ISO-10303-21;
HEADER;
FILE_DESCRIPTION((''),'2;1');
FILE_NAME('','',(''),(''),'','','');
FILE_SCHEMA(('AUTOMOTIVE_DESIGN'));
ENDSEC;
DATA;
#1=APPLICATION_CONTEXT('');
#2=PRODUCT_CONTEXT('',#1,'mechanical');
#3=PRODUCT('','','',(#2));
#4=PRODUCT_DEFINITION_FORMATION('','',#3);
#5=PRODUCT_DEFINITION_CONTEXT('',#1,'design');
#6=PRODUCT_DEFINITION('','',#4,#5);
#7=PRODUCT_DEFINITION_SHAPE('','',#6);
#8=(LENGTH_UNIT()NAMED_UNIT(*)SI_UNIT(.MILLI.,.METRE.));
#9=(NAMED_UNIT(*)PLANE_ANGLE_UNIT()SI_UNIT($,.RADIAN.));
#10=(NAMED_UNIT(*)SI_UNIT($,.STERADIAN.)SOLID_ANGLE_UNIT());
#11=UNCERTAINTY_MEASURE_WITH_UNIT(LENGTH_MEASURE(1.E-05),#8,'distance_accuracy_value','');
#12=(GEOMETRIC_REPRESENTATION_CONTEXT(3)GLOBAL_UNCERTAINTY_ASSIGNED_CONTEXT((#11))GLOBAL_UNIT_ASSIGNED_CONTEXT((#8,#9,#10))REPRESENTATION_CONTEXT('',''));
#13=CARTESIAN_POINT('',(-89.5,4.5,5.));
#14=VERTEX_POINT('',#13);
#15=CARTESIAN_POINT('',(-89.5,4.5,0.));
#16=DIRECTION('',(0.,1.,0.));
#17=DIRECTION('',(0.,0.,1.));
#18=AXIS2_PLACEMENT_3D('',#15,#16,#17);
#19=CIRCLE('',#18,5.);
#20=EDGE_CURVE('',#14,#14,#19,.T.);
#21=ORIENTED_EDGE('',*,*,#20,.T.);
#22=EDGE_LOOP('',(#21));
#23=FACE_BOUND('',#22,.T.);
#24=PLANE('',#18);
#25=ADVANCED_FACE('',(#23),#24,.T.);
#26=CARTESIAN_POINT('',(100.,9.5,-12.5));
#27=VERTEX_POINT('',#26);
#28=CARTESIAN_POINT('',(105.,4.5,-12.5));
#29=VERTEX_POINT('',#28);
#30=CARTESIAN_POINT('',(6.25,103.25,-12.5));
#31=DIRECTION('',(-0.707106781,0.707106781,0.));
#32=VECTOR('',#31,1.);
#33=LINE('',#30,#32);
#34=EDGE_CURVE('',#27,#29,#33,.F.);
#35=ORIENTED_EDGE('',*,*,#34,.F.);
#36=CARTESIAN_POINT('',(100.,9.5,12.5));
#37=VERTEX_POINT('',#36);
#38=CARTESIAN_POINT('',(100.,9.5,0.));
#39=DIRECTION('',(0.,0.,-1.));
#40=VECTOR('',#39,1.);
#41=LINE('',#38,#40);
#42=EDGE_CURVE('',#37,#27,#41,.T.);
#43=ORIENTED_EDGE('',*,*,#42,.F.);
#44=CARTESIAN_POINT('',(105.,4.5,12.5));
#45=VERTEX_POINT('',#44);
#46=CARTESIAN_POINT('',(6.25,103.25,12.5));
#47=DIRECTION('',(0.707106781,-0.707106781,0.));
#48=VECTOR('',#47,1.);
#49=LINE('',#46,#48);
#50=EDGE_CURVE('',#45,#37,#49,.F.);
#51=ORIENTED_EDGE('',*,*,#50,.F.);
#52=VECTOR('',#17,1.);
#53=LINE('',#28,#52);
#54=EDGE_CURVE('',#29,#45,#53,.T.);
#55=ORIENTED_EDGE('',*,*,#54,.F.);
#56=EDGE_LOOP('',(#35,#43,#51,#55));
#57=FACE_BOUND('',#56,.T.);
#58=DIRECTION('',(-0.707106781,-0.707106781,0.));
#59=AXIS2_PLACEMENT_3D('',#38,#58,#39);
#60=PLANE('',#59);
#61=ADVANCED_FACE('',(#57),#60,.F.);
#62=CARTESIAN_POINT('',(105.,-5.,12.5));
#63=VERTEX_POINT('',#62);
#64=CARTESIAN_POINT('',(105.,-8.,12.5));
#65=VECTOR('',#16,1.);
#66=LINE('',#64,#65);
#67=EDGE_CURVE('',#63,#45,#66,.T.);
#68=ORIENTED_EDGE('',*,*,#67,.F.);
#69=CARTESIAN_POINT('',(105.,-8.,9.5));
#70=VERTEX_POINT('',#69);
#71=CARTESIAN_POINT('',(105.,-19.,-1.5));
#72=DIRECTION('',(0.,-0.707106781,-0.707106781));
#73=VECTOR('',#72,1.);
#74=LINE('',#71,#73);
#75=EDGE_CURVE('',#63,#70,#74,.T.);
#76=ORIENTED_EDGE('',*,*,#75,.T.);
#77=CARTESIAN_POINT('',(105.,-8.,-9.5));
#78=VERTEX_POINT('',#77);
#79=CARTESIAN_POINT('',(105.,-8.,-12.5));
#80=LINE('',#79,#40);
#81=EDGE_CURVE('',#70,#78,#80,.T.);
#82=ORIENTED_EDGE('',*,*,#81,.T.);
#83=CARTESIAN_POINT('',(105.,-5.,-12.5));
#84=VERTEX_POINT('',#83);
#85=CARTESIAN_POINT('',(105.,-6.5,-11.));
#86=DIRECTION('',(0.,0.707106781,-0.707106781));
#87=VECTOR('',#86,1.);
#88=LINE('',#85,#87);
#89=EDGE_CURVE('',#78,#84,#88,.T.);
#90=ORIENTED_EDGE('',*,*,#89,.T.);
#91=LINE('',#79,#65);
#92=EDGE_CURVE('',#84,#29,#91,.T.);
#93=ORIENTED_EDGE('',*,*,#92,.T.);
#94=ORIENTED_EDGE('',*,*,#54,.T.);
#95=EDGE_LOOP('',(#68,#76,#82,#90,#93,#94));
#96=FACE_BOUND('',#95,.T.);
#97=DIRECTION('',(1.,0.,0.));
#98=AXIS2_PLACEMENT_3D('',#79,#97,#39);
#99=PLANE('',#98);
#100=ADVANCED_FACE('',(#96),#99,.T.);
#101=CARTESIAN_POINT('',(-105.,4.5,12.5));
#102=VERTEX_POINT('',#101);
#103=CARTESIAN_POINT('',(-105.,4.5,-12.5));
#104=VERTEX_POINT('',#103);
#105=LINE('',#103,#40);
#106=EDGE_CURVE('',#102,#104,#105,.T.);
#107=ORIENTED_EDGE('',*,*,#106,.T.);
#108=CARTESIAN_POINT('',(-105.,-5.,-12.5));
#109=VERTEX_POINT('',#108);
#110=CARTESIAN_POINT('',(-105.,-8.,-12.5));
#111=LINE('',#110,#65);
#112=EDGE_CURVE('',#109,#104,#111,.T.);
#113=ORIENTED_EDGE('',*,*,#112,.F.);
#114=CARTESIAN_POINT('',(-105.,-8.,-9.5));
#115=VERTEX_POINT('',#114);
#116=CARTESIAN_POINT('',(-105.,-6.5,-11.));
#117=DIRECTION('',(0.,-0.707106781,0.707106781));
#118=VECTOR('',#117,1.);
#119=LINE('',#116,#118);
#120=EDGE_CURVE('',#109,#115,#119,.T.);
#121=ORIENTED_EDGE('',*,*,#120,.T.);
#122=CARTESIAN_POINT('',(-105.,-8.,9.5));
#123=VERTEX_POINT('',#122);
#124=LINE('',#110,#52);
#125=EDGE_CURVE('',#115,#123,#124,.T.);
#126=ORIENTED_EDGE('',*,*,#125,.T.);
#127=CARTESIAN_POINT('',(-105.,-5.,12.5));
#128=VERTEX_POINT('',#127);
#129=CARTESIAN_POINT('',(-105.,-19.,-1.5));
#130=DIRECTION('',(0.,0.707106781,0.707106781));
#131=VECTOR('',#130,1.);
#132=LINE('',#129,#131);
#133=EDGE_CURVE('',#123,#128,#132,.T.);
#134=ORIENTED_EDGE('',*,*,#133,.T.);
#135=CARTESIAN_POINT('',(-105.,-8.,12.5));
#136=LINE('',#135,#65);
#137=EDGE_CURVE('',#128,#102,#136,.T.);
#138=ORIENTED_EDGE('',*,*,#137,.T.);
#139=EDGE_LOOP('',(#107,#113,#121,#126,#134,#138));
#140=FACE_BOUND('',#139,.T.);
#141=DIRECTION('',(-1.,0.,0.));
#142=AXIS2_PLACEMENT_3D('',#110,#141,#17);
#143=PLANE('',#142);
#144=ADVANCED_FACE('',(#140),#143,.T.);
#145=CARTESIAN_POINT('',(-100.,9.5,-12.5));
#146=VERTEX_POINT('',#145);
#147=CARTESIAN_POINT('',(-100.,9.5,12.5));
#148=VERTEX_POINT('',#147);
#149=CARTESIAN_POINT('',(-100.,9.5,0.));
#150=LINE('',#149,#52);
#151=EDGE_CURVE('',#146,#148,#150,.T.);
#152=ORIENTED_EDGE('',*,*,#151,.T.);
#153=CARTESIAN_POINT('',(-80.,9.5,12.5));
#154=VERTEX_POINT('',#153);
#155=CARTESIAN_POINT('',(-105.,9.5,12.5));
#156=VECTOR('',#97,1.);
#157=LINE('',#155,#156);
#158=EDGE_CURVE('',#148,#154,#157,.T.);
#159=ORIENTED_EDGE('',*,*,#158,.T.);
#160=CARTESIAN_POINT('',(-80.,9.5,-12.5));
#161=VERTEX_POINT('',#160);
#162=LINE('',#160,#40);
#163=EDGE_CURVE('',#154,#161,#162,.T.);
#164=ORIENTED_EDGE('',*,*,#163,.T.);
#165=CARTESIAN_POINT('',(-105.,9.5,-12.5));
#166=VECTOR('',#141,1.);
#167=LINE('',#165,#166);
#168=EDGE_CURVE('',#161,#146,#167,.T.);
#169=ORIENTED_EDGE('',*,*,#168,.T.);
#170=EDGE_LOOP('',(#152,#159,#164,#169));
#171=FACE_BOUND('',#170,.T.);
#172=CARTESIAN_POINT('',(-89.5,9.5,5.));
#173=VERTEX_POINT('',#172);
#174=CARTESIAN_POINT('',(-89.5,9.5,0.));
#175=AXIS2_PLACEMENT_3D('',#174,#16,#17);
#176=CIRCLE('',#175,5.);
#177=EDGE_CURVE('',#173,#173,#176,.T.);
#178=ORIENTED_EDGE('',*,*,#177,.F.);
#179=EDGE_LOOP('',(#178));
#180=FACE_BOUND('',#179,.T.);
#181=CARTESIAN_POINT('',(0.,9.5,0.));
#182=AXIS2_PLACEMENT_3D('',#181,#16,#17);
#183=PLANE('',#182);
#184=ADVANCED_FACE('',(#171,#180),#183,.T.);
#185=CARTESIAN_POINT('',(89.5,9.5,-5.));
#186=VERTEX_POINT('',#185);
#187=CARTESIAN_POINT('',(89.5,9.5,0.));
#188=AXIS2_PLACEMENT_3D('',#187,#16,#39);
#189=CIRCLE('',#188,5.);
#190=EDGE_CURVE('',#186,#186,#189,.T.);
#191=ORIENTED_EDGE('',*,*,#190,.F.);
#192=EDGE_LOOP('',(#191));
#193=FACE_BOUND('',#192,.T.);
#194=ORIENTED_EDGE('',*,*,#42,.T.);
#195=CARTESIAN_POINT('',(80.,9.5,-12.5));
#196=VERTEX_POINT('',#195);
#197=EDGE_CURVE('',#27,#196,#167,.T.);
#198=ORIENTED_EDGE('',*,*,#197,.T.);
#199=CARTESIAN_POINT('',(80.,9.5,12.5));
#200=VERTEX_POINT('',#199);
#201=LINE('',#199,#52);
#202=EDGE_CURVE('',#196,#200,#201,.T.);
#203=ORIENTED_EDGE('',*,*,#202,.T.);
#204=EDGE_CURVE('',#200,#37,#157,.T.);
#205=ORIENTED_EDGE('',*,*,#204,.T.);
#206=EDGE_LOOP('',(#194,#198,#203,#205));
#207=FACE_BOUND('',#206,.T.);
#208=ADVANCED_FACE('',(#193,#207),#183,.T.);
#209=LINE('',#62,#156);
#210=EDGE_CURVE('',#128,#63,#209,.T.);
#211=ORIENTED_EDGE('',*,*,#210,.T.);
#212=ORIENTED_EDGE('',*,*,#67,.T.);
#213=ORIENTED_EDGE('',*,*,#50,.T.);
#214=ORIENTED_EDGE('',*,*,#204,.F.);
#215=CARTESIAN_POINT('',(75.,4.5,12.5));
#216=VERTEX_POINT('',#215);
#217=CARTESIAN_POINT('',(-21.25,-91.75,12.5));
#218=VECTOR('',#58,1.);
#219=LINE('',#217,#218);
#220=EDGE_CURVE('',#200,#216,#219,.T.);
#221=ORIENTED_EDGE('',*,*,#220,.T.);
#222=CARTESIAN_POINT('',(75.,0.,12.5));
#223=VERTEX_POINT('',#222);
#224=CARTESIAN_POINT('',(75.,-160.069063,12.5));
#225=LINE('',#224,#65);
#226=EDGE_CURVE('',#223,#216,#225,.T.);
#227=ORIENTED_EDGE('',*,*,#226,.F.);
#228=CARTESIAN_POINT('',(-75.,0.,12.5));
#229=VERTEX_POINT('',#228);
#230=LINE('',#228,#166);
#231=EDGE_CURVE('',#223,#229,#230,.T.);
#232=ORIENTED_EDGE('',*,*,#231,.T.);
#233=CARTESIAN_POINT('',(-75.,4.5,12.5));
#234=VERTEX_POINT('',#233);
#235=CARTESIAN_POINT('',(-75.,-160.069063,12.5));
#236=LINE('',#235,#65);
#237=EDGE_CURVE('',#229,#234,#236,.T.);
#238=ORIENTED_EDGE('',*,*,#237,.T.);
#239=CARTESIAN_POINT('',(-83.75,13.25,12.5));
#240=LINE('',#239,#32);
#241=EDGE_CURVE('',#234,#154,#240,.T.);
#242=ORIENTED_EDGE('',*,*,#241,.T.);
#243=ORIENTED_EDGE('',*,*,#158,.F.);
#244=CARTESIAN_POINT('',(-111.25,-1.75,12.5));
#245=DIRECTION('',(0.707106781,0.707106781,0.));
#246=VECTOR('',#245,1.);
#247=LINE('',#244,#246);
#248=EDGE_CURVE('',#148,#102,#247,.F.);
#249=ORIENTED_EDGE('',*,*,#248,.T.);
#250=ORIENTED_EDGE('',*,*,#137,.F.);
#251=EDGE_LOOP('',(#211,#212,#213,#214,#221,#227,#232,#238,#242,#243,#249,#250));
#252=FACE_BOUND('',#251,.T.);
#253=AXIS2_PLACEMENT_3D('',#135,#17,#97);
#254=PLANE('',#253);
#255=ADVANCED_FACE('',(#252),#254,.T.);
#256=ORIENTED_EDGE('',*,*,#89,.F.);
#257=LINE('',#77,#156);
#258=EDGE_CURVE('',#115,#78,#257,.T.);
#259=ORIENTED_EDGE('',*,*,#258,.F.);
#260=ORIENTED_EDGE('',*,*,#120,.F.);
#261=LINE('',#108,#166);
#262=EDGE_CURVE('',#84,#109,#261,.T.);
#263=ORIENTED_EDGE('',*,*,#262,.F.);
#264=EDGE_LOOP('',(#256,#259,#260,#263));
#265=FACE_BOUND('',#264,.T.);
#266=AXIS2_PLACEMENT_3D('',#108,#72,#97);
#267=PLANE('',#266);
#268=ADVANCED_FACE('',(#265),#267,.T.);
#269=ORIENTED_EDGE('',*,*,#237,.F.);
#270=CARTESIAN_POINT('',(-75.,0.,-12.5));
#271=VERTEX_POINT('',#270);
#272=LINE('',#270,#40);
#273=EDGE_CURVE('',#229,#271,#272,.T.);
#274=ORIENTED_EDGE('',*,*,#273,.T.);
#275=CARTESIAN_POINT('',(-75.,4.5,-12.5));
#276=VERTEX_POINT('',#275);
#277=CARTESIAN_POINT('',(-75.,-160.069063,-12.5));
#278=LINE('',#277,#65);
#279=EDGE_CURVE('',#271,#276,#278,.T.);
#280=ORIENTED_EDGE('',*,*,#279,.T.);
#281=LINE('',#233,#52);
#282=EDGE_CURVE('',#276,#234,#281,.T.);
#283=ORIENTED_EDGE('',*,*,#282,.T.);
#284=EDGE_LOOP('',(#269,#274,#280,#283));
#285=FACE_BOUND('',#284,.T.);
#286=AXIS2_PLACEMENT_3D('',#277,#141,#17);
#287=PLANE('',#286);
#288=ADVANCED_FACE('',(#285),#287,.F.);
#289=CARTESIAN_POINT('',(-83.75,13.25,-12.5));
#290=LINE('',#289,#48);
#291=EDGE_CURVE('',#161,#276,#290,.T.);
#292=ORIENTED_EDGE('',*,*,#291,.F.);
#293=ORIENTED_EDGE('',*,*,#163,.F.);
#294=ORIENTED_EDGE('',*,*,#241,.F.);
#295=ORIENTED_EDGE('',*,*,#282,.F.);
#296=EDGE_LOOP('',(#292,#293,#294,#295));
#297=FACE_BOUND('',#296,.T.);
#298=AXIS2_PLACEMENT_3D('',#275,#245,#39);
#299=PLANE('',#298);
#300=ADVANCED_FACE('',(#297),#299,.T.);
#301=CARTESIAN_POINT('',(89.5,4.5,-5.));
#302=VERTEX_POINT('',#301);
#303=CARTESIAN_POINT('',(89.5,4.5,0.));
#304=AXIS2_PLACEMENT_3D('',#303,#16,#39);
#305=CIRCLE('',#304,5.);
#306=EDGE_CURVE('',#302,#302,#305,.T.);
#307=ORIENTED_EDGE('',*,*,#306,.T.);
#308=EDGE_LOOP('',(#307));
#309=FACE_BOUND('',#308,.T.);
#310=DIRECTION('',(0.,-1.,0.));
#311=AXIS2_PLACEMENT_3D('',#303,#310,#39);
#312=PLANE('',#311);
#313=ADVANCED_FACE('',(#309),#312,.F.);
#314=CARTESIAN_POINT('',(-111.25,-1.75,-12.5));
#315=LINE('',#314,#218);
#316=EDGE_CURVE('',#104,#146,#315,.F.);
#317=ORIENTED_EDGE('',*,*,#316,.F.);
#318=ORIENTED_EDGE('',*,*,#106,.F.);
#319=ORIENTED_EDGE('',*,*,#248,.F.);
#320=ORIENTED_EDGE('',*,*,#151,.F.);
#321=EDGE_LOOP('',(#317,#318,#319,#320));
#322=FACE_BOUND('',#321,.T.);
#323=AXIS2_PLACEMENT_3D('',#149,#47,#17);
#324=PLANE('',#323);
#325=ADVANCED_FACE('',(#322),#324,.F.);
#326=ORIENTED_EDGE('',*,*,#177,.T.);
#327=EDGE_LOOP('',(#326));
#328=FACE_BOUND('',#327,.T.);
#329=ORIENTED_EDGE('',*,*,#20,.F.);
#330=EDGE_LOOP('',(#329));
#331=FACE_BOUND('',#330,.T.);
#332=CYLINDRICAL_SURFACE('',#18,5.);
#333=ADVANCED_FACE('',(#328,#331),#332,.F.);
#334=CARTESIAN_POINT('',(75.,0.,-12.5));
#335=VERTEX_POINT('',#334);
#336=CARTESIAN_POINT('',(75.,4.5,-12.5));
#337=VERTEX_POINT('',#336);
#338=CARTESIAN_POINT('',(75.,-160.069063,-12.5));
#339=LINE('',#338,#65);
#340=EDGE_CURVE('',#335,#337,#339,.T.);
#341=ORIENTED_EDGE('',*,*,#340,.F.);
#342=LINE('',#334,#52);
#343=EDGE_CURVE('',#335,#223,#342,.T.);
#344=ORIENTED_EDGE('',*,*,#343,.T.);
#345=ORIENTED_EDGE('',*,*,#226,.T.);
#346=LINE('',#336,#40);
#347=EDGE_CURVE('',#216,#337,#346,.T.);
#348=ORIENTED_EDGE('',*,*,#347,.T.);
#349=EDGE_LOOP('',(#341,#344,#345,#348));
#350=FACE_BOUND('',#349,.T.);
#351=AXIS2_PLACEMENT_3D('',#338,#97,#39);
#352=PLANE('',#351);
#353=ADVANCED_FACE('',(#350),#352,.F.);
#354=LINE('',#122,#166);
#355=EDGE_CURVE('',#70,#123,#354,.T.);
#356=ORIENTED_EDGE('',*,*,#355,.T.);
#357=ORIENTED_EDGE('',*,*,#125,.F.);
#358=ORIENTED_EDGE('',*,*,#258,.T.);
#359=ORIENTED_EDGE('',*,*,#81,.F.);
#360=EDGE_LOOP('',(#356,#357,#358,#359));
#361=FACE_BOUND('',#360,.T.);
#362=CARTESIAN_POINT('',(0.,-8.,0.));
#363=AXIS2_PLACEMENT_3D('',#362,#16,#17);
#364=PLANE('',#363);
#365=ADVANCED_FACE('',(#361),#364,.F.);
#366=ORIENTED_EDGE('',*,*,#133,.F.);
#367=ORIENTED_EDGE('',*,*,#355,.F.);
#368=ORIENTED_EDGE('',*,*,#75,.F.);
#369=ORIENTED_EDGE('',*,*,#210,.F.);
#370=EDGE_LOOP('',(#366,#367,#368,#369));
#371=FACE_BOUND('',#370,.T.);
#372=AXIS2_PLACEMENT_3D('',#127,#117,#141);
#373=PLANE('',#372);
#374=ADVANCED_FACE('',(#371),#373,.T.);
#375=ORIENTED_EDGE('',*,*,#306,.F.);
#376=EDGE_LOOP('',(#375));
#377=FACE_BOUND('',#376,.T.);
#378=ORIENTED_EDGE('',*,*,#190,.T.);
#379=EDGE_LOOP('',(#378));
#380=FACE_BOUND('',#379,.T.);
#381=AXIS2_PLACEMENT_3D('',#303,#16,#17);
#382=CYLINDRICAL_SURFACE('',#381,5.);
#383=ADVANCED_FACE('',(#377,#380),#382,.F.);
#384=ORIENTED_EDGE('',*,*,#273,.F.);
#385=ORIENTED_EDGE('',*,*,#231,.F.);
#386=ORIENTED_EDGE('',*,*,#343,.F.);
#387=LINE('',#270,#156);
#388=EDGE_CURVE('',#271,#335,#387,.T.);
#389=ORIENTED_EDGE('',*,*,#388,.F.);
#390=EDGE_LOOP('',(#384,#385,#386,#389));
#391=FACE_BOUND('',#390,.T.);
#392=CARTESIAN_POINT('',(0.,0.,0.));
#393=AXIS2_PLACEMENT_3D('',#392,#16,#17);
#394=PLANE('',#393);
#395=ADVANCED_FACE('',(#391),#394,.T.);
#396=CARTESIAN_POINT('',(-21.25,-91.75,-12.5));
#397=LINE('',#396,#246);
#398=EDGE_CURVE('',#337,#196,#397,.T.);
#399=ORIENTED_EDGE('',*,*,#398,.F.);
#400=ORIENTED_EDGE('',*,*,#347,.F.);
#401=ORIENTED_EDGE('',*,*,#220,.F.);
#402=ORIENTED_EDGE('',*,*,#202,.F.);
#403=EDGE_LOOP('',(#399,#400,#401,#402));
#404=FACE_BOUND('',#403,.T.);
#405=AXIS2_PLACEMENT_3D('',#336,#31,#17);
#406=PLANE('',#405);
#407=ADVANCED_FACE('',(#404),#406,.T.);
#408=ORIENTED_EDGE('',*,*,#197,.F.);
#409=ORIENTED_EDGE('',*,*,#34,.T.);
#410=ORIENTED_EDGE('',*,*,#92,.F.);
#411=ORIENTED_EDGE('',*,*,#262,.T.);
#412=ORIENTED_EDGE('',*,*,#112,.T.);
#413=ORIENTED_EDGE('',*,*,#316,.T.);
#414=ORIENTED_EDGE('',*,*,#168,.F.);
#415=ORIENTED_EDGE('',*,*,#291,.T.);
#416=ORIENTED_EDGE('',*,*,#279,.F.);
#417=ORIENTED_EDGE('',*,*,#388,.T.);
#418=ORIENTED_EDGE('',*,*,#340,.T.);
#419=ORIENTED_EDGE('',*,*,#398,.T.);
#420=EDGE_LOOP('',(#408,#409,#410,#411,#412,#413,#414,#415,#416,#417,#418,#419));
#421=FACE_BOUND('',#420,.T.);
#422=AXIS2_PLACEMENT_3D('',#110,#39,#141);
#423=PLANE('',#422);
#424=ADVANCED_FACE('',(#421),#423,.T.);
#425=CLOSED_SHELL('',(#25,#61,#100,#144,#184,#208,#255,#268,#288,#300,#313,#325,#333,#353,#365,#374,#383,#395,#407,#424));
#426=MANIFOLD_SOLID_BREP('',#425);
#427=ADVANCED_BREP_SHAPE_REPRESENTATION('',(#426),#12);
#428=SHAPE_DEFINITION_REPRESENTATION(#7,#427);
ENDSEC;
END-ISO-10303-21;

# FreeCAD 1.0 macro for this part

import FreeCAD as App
import Part
import Sketcher
Q = App.Units.Quantity


def edges_at(feature, points):
    """Names of the edges that pass closest to the given points."""
    edges = feature.Shape.Edges
    near = lambda p: min(range(len(edges)), key=lambda i: edges[i].distToShape(Part.Vertex(*p))[0])
    return sorted({f"Edge{near(p) + 1}" for p in points})


def add_polygon(sketch, points):
    """Adds a closed chain of lines whose ends are joined by coincident constraints."""
    first, n = sketch.GeometryCount, len(points)
    for a, b in zip(points, points[1:] + points[:1]):
        sketch.addGeometry(Part.LineSegment(App.Vector(*a, 0), App.Vector(*b, 0)), False)
    for i in range(n):
        sketch.addConstraint(Sketcher.Constraint("Coincident", first + i, 2, first + (i + 1) % n, 1))

doc = App.newDocument("Part")
body = doc.addObject("PartDesign::Body", "Body")

sketch1 = body.newObject("Sketcher::SketchObject", "Sketch")
sketch1.AttachmentSupport = (doc.getObject("XZ_Plane"), [""])
sketch1.MapMode = "FlatFace"
add_polygon(sketch1, [(-105, -12.5), (-105, 12.5), (105, 12.5), (105, -12.5)])
sketch1.addConstraint(Sketcher.Constraint("Vertical", 0))
sketch1.addConstraint(Sketcher.Constraint("Horizontal", 1))
sketch1.addConstraint(Sketcher.Constraint("Vertical", 2))
sketch1.addConstraint(Sketcher.Constraint("Horizontal", 3))
sketch1.addConstraint(Sketcher.Constraint("Symmetric", 0, 2, 2, 2, -1, 1))
sketch1.addConstraint(Sketcher.Constraint("DistanceX", 1, 1, 1, 2, Q("210 mm")))
sketch1.addConstraint(Sketcher.Constraint("DistanceY", 0, 1, 0, 2, Q("25 mm")))
pad1 = body.newObject("PartDesign::Pad", "Pad")
pad1.Profile = sketch1
pad1.Type = "TwoLengths"
pad1.Length = 9.5
pad1.Length2 = 8
pad1.Reversed = True

sketch2 = body.newObject("Sketcher::SketchObject", "Sketch001")
sketch2.AttachmentSupport = (doc.getObject("XZ_Plane"), [""])
sketch2.MapMode = "FlatFace"
sketch2.AttachmentOffset = App.Placement(App.Vector(0, 0, -9.5), App.Rotation())
add_polygon(sketch2, [(-75, -12.5), (-75, 12.5), (75, 12.5), (75, -12.5)])
sketch2.addConstraint(Sketcher.Constraint("Vertical", 0))
sketch2.addConstraint(Sketcher.Constraint("Horizontal", 1))
sketch2.addConstraint(Sketcher.Constraint("Vertical", 2))
sketch2.addConstraint(Sketcher.Constraint("Horizontal", 3))
sketch2.addConstraint(Sketcher.Constraint("Symmetric", 0, 2, 2, 2, -1, 1))
sketch2.addConstraint(Sketcher.Constraint("DistanceX", 1, 1, 1, 2, Q("150 mm")))
sketch2.addConstraint(Sketcher.Constraint("DistanceY", 0, 1, 0, 2, Q("25 mm")))
pocket1 = body.newObject("PartDesign::Pocket", "Pocket")
pocket1.Profile = sketch2
pocket1.Length = 9.5
pocket1.Reversed = True

sketch3 = body.newObject("Sketcher::SketchObject", "Sketch002")
sketch3.AttachmentSupport = (doc.getObject("XZ_Plane"), [""])
sketch3.MapMode = "FlatFace"
sketch3.AttachmentOffset = App.Placement(App.Vector(0, 0, -9.5), App.Rotation())
sketch3.addGeometry(Part.Circle(App.Vector(-89.5, 0, 0), App.Vector(0, 0, 1), 5), False)
sketch3.addGeometry(Part.Circle(App.Vector(89.5, 0, 0), App.Vector(0, 0, 1), 5), False)
sketch3.addConstraint(Sketcher.Constraint("Equal", 0, 1))
sketch3.addConstraint(Sketcher.Constraint("Symmetric", 0, 3, 1, 3, -1, 1))
sketch3.addConstraint(Sketcher.Constraint("PointOnObject", 0, 3, -1))
sketch3.addConstraint(Sketcher.Constraint("Diameter", 0, Q("10 mm")))
sketch3.addConstraint(Sketcher.Constraint("DistanceX", 0, 3, 1, 3, Q("179 mm")))
pocket2 = body.newObject("PartDesign::Pocket", "Pocket001")
pocket2.Profile = sketch3
pocket2.Length = 5
pocket2.Reversed = True
doc.recompute()

chamfer = body.newObject("PartDesign::Chamfer", "Chamfer")
chamfer.Base = (pocket2, edges_at(pocket2, [
    (-105, 9.5, 0),
    (105, 9.5, 0),
    (-75, 9.5, 0),
    (75, 9.5, 0),
]))
chamfer.Size = 5
doc.recompute()

chamfer2 = body.newObject("PartDesign::Chamfer", "Chamfer001")
chamfer2.Base = (chamfer, edges_at(chamfer, [(0, -8, -12.5), (0, -8, 12.5)]))
chamfer2.Size = 3

doc.recompute()
